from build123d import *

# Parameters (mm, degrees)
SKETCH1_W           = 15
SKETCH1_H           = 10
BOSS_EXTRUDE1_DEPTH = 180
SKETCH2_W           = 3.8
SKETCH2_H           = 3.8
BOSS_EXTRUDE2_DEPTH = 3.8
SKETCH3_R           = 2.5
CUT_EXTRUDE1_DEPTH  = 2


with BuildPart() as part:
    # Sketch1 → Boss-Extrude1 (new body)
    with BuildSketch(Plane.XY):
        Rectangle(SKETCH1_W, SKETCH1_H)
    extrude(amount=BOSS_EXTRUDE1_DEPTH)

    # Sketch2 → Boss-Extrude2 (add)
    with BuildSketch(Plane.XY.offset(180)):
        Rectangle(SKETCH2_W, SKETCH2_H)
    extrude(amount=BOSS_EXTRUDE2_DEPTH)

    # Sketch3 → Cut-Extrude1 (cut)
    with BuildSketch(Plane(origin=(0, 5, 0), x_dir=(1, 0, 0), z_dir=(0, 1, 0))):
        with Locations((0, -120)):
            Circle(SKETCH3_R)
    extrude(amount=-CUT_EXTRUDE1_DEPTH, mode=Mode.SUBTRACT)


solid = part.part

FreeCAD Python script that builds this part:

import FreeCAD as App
import Part
import Sketcher
from FreeCAD import Vector

doc = App.newDocument("Part")
params = doc.addObject("Spreadsheet::Sheet", "Params")
for row, (alias, value) in enumerate([
    ("sketch1_width", "15 mm"),
    ("sketch1_height", "10 mm"),
    ("pad1_length", "180 mm"),
    ("sketch2_width", "3.8 mm"),
    ("pad2_length", "3.8 mm"),
    ("sketch3_diameter", "5 mm"),
    ("pocket1_length", "2 mm"),
], start=1):
    params.set(f"A{row}", alias)
    params.set(f"B{row}", "=" + value)
    params.setAlias(f"B{row}", alias)

body = doc.addObject("PartDesign::Body", "Body")

# Sketch on XY plane
sketch1 = body.newObject("Sketcher::SketchObject", "Sketch")
sketch1.AttachmentSupport = (doc.getObject("XY_Plane"), [""])
sketch1.MapMode = "FlatFace"
sketch1.addGeometry([
    Part.LineSegment(Vector(-7.5, 5, 0), Vector(-7.5, -5, 0)),
    Part.LineSegment(Vector(-7.5, -5, 0), Vector(7.5, -5, 0)),
    Part.LineSegment(Vector(7.5, -5, 0), Vector(7.5, 5, 0)),
    Part.LineSegment(Vector(7.5, 5, 0), Vector(-7.5, 5, 0)),
], False)
sketch1.addConstraint([
    Sketcher.Constraint("Coincident", 0, 2, 1, 1),
    Sketcher.Constraint("Coincident", 1, 2, 2, 1),
    Sketcher.Constraint("Coincident", 2, 2, 3, 1),
    Sketcher.Constraint("Coincident", 3, 2, 0, 1),
    Sketcher.Constraint("Vertical", 0),
    Sketcher.Constraint("Horizontal", 1),
    Sketcher.Constraint("Vertical", 2),
    Sketcher.Constraint("Horizontal", 3),
    Sketcher.Constraint("Symmetric", 0, 2, 2, 2, -1, 1),
    Sketcher.Constraint("DistanceX", 1, 1, 1, 2, 15.0),
    Sketcher.Constraint("DistanceY", 0, 2, 0, 1, 10.0),
])
sketch1.setExpression("Constraints[9]", "Params.sketch1_width")
sketch1.setExpression("Constraints[10]", "Params.sketch1_height")
pad1 = body.newObject("PartDesign::Pad", "Pad")
pad1.Profile = sketch1
pad1.setExpression("Length", "Params.pad1_length")

# Sketch on XY plane
sketch2 = body.newObject("Sketcher::SketchObject", "Sketch001")
sketch2.AttachmentSupport = (doc.getObject("XY_Plane"), [""])
sketch2.MapMode = "FlatFace"
sketch2.AttachmentOffset = App.Placement(Vector(0, 0, 180), App.Rotation())
sketch2.addGeometry([
    Part.LineSegment(Vector(-1.9, 1.9, 0), Vector(-1.9, -1.9, 0)),
    Part.LineSegment(Vector(-1.9, -1.9, 0), Vector(1.9, -1.9, 0)),
    Part.LineSegment(Vector(1.9, -1.9, 0), Vector(1.9, 1.9, 0)),
    Part.LineSegment(Vector(1.9, 1.9, 0), Vector(-1.9, 1.9, 0)),
], False)
sketch2.addConstraint([
    Sketcher.Constraint("Coincident", 0, 2, 1, 1),
    Sketcher.Constraint("Coincident", 1, 2, 2, 1),
    Sketcher.Constraint("Coincident", 2, 2, 3, 1),
    Sketcher.Constraint("Coincident", 3, 2, 0, 1),
    Sketcher.Constraint("Vertical", 0),
    Sketcher.Constraint("Horizontal", 1),
    Sketcher.Constraint("Vertical", 2),
    Sketcher.Constraint("Horizontal", 3),
    Sketcher.Constraint("Symmetric", 0, 2, 2, 2, -1, 1),
    Sketcher.Constraint("Equal", 3, 0),
    Sketcher.Constraint("DistanceX", 1, 1, 1, 2, 3.8),
])
sketch2.setExpression("Constraints[10]", "Params.sketch2_width")
pad2 = body.newObject("PartDesign::Pad", "Pad001")
pad2.Profile = sketch2
pad2.setExpression("Length", "Params.pad2_length")

# Sketch on XZ plane
sketch3 = body.newObject("Sketcher::SketchObject", "Sketch002")
sketch3.AttachmentSupport = (doc.getObject("XZ_Plane"), [""])
sketch3.MapMode = "FlatFace"
sketch3.AttachmentOffset = App.Placement(Vector(0, 0, -5), App.Rotation())
sketch3.addGeometry(Part.Circle(Vector(0, 120, 0), Vector(0, 0, 1), 2.5), False)
sketch3.addConstraint([
    Sketcher.Constraint("PointOnObject", 0, 3, -2),
    Sketcher.Constraint("Diameter", 0, 5.0),
    Sketcher.Constraint("DistanceY", -1, 1, 0, 3, 120.0),
])
sketch3.setExpression("Constraints[1]", "Params.sketch3_diameter")
pocket1 = body.newObject("PartDesign::Pocket", "Pocket")
pocket1.Profile = sketch3
pocket1.setExpression("Length", "Params.pocket1_length")
pocket1.Reversed = True

doc.recompute()
